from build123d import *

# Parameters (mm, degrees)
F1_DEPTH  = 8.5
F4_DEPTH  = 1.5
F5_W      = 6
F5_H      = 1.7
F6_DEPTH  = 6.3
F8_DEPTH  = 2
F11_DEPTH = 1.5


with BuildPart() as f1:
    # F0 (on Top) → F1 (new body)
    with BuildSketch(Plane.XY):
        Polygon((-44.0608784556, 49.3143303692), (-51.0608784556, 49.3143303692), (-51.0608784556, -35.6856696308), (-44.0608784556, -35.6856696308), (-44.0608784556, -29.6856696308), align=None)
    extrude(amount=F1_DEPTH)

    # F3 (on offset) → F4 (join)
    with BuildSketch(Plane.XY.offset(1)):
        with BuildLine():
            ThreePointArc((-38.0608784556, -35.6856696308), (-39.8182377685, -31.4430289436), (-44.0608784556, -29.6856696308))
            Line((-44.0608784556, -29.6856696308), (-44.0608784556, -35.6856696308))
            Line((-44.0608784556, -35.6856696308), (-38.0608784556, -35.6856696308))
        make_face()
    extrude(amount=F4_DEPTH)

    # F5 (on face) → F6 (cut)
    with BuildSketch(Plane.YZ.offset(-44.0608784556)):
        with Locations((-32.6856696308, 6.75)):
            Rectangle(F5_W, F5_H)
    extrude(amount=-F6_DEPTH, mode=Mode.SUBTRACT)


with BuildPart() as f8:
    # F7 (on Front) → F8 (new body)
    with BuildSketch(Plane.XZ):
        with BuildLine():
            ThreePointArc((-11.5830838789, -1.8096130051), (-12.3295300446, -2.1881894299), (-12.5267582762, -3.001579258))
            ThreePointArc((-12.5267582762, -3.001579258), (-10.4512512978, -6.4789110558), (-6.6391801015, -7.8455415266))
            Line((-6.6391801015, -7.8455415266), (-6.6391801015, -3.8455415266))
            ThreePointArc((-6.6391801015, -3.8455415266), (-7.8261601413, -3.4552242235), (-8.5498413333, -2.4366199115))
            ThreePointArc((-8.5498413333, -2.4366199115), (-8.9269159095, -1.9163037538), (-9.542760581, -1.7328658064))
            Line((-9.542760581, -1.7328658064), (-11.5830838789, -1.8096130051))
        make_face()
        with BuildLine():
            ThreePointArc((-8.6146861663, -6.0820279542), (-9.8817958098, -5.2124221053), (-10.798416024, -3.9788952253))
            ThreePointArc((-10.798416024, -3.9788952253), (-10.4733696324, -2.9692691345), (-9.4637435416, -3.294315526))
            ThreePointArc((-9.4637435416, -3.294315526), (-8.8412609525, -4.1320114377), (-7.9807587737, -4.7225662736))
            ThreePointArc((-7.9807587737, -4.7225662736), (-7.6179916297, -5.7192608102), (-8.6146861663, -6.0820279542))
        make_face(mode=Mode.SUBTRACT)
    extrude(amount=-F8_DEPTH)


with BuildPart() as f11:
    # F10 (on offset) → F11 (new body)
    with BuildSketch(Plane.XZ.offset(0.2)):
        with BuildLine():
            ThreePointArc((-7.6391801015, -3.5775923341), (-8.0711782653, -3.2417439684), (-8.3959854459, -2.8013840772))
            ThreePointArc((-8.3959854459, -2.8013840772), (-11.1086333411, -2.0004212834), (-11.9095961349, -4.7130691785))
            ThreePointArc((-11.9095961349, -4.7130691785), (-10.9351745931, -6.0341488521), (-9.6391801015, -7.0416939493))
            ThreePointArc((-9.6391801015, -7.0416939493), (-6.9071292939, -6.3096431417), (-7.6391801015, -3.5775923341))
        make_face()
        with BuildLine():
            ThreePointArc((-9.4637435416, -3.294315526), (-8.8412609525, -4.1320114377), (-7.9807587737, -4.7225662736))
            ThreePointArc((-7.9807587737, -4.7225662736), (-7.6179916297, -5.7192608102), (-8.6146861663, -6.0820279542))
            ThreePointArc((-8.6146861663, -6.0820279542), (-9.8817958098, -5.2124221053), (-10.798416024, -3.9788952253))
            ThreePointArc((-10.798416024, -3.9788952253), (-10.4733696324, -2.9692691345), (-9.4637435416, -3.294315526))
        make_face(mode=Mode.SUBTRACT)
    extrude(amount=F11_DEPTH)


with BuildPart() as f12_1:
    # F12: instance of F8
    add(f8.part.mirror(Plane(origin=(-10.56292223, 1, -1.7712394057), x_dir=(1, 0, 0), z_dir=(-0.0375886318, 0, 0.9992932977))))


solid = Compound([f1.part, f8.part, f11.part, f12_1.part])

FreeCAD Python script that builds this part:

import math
import FreeCAD as App
import Part
import Sketcher
from FreeCAD import Vector


def add_polygon(sketch, points):
    """Adds a closed chain of lines whose ends are joined by coincident constraints."""
    first, n = sketch.GeometryCount, len(points)
    for a, b in zip(points, points[1:] + points[:1]):
        sketch.addGeometry(Part.LineSegment(App.Vector(*a, 0), App.Vector(*b, 0)), False)
    for i in range(n):
        sketch.addConstraint(Sketcher.Constraint("Coincident", first + i, 2, first + (i + 1) % n, 1))

doc = App.newDocument("Part")
params = doc.addObject("Spreadsheet::Sheet", "Params")
for row, (alias, value) in enumerate([
    ("sketch1_width", "7 mm"),
    ("sketch1_height", "85 mm"),
    ("pad1_length", "8.5 mm"),
    ("sketch2_radius", "6 mm"),
    ("pad2_length", "1.5 mm"),
    ("sketch3_width", "6 mm"),
    ("sketch3_height", "1.7 mm"),
    ("pocket1_length", "6.3 mm"),
    ("sketch4_radius", "1 mm"),
    ("sketch4_radius2", "6 mm"),
    ("sketch4_radius3", "2 mm"),
    ("sketch4_radius4", "0.75 mm"),
    ("pad3_length", "2 mm"),
    ("sketch5_radius", "2 mm"),
    ("sketch5_radius2", "0.75 mm"),
    ("pad4_length", "1.5 mm"),
], start=1):
    params.set(f"A{row}", alias)
    params.set(f"B{row}", "=" + value)
    params.setAlias(f"B{row}", alias)

body = doc.addObject("PartDesign::Body", "Body")

# Sketch on XY plane
sketch1 = body.newObject("Sketcher::SketchObject", "Sketch")
sketch1.AttachmentSupport = (doc.getObject("XY_Plane"), [""])
sketch1.MapMode = "FlatFace"
add_polygon(sketch1, [(-44, 49), (-51, 49), (-51, -36), (-44, -36)])  # lines 0-3
sketch1.addConstraint(Sketcher.Constraint("Horizontal", 0))
sketch1.addConstraint(Sketcher.Constraint("Vertical", 1))
sketch1.addConstraint(Sketcher.Constraint("Horizontal", 2))
sketch1.addConstraint(Sketcher.Constraint("Vertical", 3))
sketch1.addConstraint(Sketcher.Constraint("DistanceX", 0, 2, 0, 1, 7.0))
sketch1.addConstraint(Sketcher.Constraint("DistanceY", 1, 2, 1, 1, 85.0))
sketch1.addConstraint(Sketcher.Constraint("DistanceX", 0, 2, -1, 1, 51.060878))
sketch1.addConstraint(Sketcher.Constraint("DistanceY", -1, 1, 0, 2, 49.31433))
sketch1.setExpression("Constraints[8]", "Params.sketch1_width")
sketch1.setExpression("Constraints[9]", "Params.sketch1_height")
pad1 = body.newObject("PartDesign::Pad", "Pad")
pad1.Profile = sketch1
pad1.setExpression("Length", "Params.pad1_length")

# Sketch on XY plane
sketch2 = body.newObject("Sketcher::SketchObject", "Sketch001")
sketch2.AttachmentSupport = (doc.getObject("XY_Plane"), [""])
sketch2.MapMode = "FlatFace"
sketch2.AttachmentOffset = App.Placement(Vector(0, 0, 1), App.Rotation())
sketch2.addGeometry(Part.ArcOfCircle(Part.Circle(Vector(-44, -36, 0), Vector(0, 0, 1), 6), math.radians(0), math.radians(90)), False)
sketch2.addGeometry(Part.LineSegment(Vector(-44, -30, 0), Vector(-44, -36, 0)), False)
sketch2.addGeometry(Part.LineSegment(Vector(-44, -36, 0), Vector(-38, -36, 0)), False)
sketch2.addConstraint(Sketcher.Constraint("Coincident", 0, 2, 1, 1))
sketch2.addConstraint(Sketcher.Constraint("Coincident", 1, 2, 2, 1))
sketch2.addConstraint(Sketcher.Constraint("Coincident", 2, 2, 0, 1))
sketch2.addConstraint(Sketcher.Constraint("Vertical", 1))
sketch2.addConstraint(Sketcher.Constraint("Horizontal", 2))
sketch2.addConstraint(Sketcher.Constraint("Coincident", 1, 2, 0, 3))
sketch2.addConstraint(Sketcher.Constraint("Radius", 0, 6.0))
sketch2.addConstraint(Sketcher.Constraint("DistanceX", 0, 3, -1, 1, 44.060878))
sketch2.addConstraint(Sketcher.Constraint("DistanceY", 0, 3, -1, 1, 35.68567))
sketch2.setExpression("Constraints[6]", "Params.sketch2_radius")
pad2 = body.newObject("PartDesign::Pad", "Pad001")
pad2.Profile = sketch2
pad2.setExpression("Length", "Params.pad2_length")

# Sketch on YZ plane
sketch3 = body.newObject("Sketcher::SketchObject", "Sketch002")
sketch3.AttachmentSupport = (doc.getObject("YZ_Plane"), [""])
sketch3.MapMode = "FlatFace"
sketch3.AttachmentOffset = App.Placement(Vector(0, 0, -44.060878), App.Rotation())
add_polygon(sketch3, [(-35.7, 7.6), (-35.7, 5.9), (-29.7, 5.9), (-29.7, 7.6)])  # lines 0-3
sketch3.addConstraint(Sketcher.Constraint("Vertical", 0))
sketch3.addConstraint(Sketcher.Constraint("Horizontal", 1))
sketch3.addConstraint(Sketcher.Constraint("Vertical", 2))
sketch3.addConstraint(Sketcher.Constraint("Horizontal", 3))
sketch3.addConstraint(Sketcher.Constraint("DistanceX", 1, 1, 1, 2, 6.0))
sketch3.addConstraint(Sketcher.Constraint("DistanceY", 0, 2, 0, 1, 1.7))
sketch3.addConstraint(Sketcher.Constraint("DistanceY", -1, 1, 0, 2, 5.9))
sketch3.addConstraint(Sketcher.Constraint("DistanceX", 0, 2, -1, 1, 35.68567))
sketch3.setExpression("Constraints[8]", "Params.sketch3_width")
sketch3.setExpression("Constraints[9]", "Params.sketch3_height")
pocket1 = body.newObject("PartDesign::Pocket", "Pocket")
pocket1.Profile = sketch3
pocket1.setExpression("Length", "Params.pocket1_length")
body2 = doc.addObject("PartDesign::Body", "Body001")

# Sketch on XZ plane
sketch4 = body2.newObject("Sketcher::SketchObject", "Sketch003")
sketch4.AttachmentSupport = (doc.getObject("XZ_Plane001"), [""])
sketch4.MapMode = "FlatFace"
sketch4.addGeometry(Part.ArcOfCircle(Part.Circle(Vector(-11.5, -2.8, 0), Vector(0, 0, 1), 1), math.radians(92), math.radians(191)), False)
sketch4.addGeometry(Part.ArcOfCircle(Part.Circle(Vector(-6.6, -1.8, 0), Vector(0, 0, 1), 6), math.radians(-169), math.radians(-90)), False)
sketch4.addGeometry(Part.LineSegment(Vector(-6.6, -7.8, 0), Vector(-6.6, -3.8, 0)), False)
sketch4.addGeometry(Part.ArcOfCircle(Part.Circle(Vector(-6.6, -1.8, 0), Vector(0, 0, 1), 2), math.radians(-163), math.radians(-90)), False)
sketch4.addGeometry(Part.ArcOfCircle(Part.Circle(Vector(-9.5, -2.7, 0), Vector(0, 0, 1), 1), math.radians(17), math.radians(92)), False)
sketch4.addGeometry(Part.LineSegment(Vector(-9.5, -1.7, 0), Vector(-11.6, -1.8, 0)), False)
sketch4.addGeometry(Part.ArcOfCircle(Part.Circle(Vector(-8.3, -5.4, 0), Vector(0, 0, 1), 0.8), math.radians(-115), math.radians(65)), False)
sketch4.addGeometry(Part.ArcOfCircle(Part.Circle(Vector(-6.6, -1.8, 0), Vector(0, 0, 1), 4.7), math.radians(-153), math.radians(-115)), False)
sketch4.addGeometry(Part.ArcOfCircle(Part.Circle(Vector(-10.1, -3.6, 0), Vector(0, 0, 1), 0.8), math.radians(27), math.radians(207)), False)
sketch4.addGeometry(Part.ArcOfCircle(Part.Circle(Vector(-6.6, -1.8, 0), Vector(0, 0, 1), 3.2), math.radians(-153), math.radians(-115)), False)
sketch4.addConstraint(Sketcher.Constraint("Tangent", 0, 2, 1, 1))
sketch4.addConstraint(Sketcher.Constraint("Coincident", 1, 2, 2, 1))
sketch4.addConstraint(Sketcher.Constraint("Coincident", 2, 2, 3, 2))
sketch4.addConstraint(Sketcher.Constraint("Tangent", 3, 1, 4, 1))
sketch4.addConstraint(Sketcher.Constraint("Tangent", 4, 2, 5, 1))
sketch4.addConstraint(Sketcher.Constraint("Tangent", 5, 2, 0, 1))
sketch4.addConstraint(Sketcher.Constraint("Tangent", 6, 1, 7, 2))
sketch4.addConstraint(Sketcher.Constraint("Tangent", 7, 1, 8, 2))
sketch4.addConstraint(Sketcher.Constraint("Tangent", 8, 1, 9, 1))
sketch4.addConstraint(Sketcher.Constraint("Tangent", 9, 2, 6, 2))
sketch4.addConstraint(Sketcher.Constraint("Vertical", 2))
sketch4.addConstraint(Sketcher.Constraint("Coincident", 3, 3, 1, 3))
sketch4.addConstraint(Sketcher.Constraint("Coincident", 7, 3, 1, 3))
sketch4.addConstraint(Sketcher.Constraint("Coincident", 9, 3, 1, 3))
sketch4.addConstraint(Sketcher.Constraint("Equal", 0, 4))
sketch4.addConstraint(Sketcher.Constraint("Vertical", 9, 3, 1, 2))
sketch4.addConstraint(Sketcher.Constraint("Radius", 0, 1.0))
sketch4.addConstraint(Sketcher.Constraint("Radius", 1, 6.0))
sketch4.addConstraint(Sketcher.Constraint("Radius", 3, 2.0))
sketch4.addConstraint(Sketcher.Constraint("Radius", 6, 0.75))
sketch4.addConstraint(Sketcher.Constraint("Radius", 7, 4.674446))
sketch4.addConstraint(Sketcher.Constraint("DistanceY", 8, 3, 0, 3, 0.827699))
sketch4.addConstraint(Sketcher.Constraint("DistanceX", 8, 3, 1, 3, 3.4919))
sketch4.addConstraint(Sketcher.Constraint("DistanceX", 1, 3, -1, 1, 6.63918))
sketch4.addConstraint(Sketcher.Constraint("DistanceY", 1, 3, -1, 1, 1.845542))
sketch4.addConstraint(Sketcher.Constraint("DistanceX", 4, 3, -1, 1, 9.505172))
sketch4.addConstraint(Sketcher.Constraint("DistanceX", 9, 2, -1, 1, 7.980759))
sketch4.setExpression("Constraints[16]", "Params.sketch4_radius")
sketch4.setExpression("Constraints[17]", "Params.sketch4_radius2")
sketch4.setExpression("Constraints[18]", "Params.sketch4_radius3")
sketch4.setExpression("Constraints[19]", "Params.sketch4_radius4")
pad3 = body2.newObject("PartDesign::Pad", "Pad002")
pad3.Profile = sketch4
pad3.setExpression("Length", "Params.pad3_length")
pad3.Reversed = True
body3 = doc.addObject("PartDesign::Body", "Body002")

# Sketch on XZ plane
sketch5 = body3.newObject("Sketcher::SketchObject", "Sketch004")
sketch5.AttachmentSupport = (doc.getObject("XZ_Plane002"), [""])
sketch5.MapMode = "FlatFace"
sketch5.AttachmentOffset = App.Placement(Vector(0, 0, 0.2), App.Rotation())
sketch5.addGeometry(Part.ArcOfCircle(Part.Circle(Vector(-6.6, -1.8, 0), Vector(0, 0, 1), 2), math.radians(-151), math.radians(-120)), False)
sketch5.addGeometry(Part.ArcOfCircle(Part.Circle(Vector(-10.2, -3.8, 0), Vector(0, 0, 1), 2), math.radians(29), math.radians(209)), False)
sketch5.addGeometry(Part.ArcOfCircle(Part.Circle(Vector(-6.6, -1.8, 0), Vector(0, 0, 1), 6), math.radians(-151), math.radians(-120)), False)
sketch5.addGeometry(Part.ArcOfCircle(Part.Circle(Vector(-8.6, -5.3, 0), Vector(0, 0, 1), 2), math.radians(-120), math.radians(60)), False)
sketch5.addGeometry(Part.ArcOfCircle(Part.Circle(Vector(-10.1, -3.6, 0), Vector(0, 0, 1), 0.8), math.radians(27), math.radians(207)), False)
sketch5.addGeometry(Part.ArcOfCircle(Part.Circle(Vector(-6.6, -1.8, 0), Vector(0, 0, 1), 3.2), math.radians(-153), math.radians(-115)), False)
sketch5.addGeometry(Part.ArcOfCircle(Part.Circle(Vector(-8.3, -5.4, 0), Vector(0, 0, 1), 0.8), math.radians(-115), math.radians(65)), False)
sketch5.addGeometry(Part.ArcOfCircle(Part.Circle(Vector(-6.6, -1.8, 0), Vector(0, 0, 1), 4.7), math.radians(-153), math.radians(-115)), False)
sketch5.addConstraint(Sketcher.Constraint("Tangent", 0, 1, 1, 1))
sketch5.addConstraint(Sketcher.Constraint("Tangent", 1, 2, 2, 1))
sketch5.addConstraint(Sketcher.Constraint("Tangent", 2, 2, 3, 1))
sketch5.addConstraint(Sketcher.Constraint("Tangent", 3, 2, 0, 2))
sketch5.addConstraint(Sketcher.Constraint("Tangent", 4, 1, 5, 1))
sketch5.addConstraint(Sketcher.Constraint("Tangent", 5, 2, 6, 2))
sketch5.addConstraint(Sketcher.Constraint("Tangent", 6, 1, 7, 2))
sketch5.addConstraint(Sketcher.Constraint("Tangent", 7, 1, 4, 2))
sketch5.addConstraint(Sketcher.Constraint("Coincident", 2, 3, 0, 3))
sketch5.addConstraint(Sketcher.Constraint("Coincident", 5, 3, 0, 3))
sketch5.addConstraint(Sketcher.Constraint("Coincident", 7, 3, 0, 3))
sketch5.addConstraint(Sketcher.Constraint("Equal", 0, 1))
sketch5.addConstraint(Sketcher.Constraint("Radius", 0, 2.0))
sketch5.addConstraint(Sketcher.Constraint("Radius", 4, 0.75))
sketch5.addConstraint(Sketcher.Constraint("DistanceX", 3, 3, 0, 3, 2.0))
sketch5.addConstraint(Sketcher.Constraint("Radius", 5, 3.174446))
sketch5.addConstraint(Sketcher.Constraint("DistanceX", 4, 3, 3, 3, 1.4919))
sketch5.addConstraint(Sketcher.Constraint("DistanceX", 0, 3, -1, 1, 6.63918))
sketch5.addConstraint(Sketcher.Constraint("DistanceY", 0, 3, -1, 1, 1.845542))
sketch5.addConstraint(Sketcher.Constraint("DistanceX", 1, 3, -1, 1, 10.152791))
sketch5.addConstraint(Sketcher.Constraint("DistanceX", 5, 2, -1, 1, 7.980759))
sketch5.setExpression("Constraints[12]", "Params.sketch5_radius")
sketch5.setExpression("Constraints[13]", "Params.sketch5_radius2")
pad4 = body3.newObject("PartDesign::Pad", "Pad003")
pad4.Profile = sketch5
pad4.setExpression("Length", "Params.pad4_length")
body4 = doc.addObject("PartDesign::Body", "Body003")
doc.recompute()

mirroring = doc.addObject("Part::Mirroring", "Mirroring")
mirroring.Source = body2
mirroring.Base = Vector(-10.562922, 1, -1.771239)
mirroring.Normal = Vector(-0.037588632, 0, 0.999293298)
body4.BaseFeature = mirroring
doc.recompute()
mirroring.Visibility = False

doc.recompute()
